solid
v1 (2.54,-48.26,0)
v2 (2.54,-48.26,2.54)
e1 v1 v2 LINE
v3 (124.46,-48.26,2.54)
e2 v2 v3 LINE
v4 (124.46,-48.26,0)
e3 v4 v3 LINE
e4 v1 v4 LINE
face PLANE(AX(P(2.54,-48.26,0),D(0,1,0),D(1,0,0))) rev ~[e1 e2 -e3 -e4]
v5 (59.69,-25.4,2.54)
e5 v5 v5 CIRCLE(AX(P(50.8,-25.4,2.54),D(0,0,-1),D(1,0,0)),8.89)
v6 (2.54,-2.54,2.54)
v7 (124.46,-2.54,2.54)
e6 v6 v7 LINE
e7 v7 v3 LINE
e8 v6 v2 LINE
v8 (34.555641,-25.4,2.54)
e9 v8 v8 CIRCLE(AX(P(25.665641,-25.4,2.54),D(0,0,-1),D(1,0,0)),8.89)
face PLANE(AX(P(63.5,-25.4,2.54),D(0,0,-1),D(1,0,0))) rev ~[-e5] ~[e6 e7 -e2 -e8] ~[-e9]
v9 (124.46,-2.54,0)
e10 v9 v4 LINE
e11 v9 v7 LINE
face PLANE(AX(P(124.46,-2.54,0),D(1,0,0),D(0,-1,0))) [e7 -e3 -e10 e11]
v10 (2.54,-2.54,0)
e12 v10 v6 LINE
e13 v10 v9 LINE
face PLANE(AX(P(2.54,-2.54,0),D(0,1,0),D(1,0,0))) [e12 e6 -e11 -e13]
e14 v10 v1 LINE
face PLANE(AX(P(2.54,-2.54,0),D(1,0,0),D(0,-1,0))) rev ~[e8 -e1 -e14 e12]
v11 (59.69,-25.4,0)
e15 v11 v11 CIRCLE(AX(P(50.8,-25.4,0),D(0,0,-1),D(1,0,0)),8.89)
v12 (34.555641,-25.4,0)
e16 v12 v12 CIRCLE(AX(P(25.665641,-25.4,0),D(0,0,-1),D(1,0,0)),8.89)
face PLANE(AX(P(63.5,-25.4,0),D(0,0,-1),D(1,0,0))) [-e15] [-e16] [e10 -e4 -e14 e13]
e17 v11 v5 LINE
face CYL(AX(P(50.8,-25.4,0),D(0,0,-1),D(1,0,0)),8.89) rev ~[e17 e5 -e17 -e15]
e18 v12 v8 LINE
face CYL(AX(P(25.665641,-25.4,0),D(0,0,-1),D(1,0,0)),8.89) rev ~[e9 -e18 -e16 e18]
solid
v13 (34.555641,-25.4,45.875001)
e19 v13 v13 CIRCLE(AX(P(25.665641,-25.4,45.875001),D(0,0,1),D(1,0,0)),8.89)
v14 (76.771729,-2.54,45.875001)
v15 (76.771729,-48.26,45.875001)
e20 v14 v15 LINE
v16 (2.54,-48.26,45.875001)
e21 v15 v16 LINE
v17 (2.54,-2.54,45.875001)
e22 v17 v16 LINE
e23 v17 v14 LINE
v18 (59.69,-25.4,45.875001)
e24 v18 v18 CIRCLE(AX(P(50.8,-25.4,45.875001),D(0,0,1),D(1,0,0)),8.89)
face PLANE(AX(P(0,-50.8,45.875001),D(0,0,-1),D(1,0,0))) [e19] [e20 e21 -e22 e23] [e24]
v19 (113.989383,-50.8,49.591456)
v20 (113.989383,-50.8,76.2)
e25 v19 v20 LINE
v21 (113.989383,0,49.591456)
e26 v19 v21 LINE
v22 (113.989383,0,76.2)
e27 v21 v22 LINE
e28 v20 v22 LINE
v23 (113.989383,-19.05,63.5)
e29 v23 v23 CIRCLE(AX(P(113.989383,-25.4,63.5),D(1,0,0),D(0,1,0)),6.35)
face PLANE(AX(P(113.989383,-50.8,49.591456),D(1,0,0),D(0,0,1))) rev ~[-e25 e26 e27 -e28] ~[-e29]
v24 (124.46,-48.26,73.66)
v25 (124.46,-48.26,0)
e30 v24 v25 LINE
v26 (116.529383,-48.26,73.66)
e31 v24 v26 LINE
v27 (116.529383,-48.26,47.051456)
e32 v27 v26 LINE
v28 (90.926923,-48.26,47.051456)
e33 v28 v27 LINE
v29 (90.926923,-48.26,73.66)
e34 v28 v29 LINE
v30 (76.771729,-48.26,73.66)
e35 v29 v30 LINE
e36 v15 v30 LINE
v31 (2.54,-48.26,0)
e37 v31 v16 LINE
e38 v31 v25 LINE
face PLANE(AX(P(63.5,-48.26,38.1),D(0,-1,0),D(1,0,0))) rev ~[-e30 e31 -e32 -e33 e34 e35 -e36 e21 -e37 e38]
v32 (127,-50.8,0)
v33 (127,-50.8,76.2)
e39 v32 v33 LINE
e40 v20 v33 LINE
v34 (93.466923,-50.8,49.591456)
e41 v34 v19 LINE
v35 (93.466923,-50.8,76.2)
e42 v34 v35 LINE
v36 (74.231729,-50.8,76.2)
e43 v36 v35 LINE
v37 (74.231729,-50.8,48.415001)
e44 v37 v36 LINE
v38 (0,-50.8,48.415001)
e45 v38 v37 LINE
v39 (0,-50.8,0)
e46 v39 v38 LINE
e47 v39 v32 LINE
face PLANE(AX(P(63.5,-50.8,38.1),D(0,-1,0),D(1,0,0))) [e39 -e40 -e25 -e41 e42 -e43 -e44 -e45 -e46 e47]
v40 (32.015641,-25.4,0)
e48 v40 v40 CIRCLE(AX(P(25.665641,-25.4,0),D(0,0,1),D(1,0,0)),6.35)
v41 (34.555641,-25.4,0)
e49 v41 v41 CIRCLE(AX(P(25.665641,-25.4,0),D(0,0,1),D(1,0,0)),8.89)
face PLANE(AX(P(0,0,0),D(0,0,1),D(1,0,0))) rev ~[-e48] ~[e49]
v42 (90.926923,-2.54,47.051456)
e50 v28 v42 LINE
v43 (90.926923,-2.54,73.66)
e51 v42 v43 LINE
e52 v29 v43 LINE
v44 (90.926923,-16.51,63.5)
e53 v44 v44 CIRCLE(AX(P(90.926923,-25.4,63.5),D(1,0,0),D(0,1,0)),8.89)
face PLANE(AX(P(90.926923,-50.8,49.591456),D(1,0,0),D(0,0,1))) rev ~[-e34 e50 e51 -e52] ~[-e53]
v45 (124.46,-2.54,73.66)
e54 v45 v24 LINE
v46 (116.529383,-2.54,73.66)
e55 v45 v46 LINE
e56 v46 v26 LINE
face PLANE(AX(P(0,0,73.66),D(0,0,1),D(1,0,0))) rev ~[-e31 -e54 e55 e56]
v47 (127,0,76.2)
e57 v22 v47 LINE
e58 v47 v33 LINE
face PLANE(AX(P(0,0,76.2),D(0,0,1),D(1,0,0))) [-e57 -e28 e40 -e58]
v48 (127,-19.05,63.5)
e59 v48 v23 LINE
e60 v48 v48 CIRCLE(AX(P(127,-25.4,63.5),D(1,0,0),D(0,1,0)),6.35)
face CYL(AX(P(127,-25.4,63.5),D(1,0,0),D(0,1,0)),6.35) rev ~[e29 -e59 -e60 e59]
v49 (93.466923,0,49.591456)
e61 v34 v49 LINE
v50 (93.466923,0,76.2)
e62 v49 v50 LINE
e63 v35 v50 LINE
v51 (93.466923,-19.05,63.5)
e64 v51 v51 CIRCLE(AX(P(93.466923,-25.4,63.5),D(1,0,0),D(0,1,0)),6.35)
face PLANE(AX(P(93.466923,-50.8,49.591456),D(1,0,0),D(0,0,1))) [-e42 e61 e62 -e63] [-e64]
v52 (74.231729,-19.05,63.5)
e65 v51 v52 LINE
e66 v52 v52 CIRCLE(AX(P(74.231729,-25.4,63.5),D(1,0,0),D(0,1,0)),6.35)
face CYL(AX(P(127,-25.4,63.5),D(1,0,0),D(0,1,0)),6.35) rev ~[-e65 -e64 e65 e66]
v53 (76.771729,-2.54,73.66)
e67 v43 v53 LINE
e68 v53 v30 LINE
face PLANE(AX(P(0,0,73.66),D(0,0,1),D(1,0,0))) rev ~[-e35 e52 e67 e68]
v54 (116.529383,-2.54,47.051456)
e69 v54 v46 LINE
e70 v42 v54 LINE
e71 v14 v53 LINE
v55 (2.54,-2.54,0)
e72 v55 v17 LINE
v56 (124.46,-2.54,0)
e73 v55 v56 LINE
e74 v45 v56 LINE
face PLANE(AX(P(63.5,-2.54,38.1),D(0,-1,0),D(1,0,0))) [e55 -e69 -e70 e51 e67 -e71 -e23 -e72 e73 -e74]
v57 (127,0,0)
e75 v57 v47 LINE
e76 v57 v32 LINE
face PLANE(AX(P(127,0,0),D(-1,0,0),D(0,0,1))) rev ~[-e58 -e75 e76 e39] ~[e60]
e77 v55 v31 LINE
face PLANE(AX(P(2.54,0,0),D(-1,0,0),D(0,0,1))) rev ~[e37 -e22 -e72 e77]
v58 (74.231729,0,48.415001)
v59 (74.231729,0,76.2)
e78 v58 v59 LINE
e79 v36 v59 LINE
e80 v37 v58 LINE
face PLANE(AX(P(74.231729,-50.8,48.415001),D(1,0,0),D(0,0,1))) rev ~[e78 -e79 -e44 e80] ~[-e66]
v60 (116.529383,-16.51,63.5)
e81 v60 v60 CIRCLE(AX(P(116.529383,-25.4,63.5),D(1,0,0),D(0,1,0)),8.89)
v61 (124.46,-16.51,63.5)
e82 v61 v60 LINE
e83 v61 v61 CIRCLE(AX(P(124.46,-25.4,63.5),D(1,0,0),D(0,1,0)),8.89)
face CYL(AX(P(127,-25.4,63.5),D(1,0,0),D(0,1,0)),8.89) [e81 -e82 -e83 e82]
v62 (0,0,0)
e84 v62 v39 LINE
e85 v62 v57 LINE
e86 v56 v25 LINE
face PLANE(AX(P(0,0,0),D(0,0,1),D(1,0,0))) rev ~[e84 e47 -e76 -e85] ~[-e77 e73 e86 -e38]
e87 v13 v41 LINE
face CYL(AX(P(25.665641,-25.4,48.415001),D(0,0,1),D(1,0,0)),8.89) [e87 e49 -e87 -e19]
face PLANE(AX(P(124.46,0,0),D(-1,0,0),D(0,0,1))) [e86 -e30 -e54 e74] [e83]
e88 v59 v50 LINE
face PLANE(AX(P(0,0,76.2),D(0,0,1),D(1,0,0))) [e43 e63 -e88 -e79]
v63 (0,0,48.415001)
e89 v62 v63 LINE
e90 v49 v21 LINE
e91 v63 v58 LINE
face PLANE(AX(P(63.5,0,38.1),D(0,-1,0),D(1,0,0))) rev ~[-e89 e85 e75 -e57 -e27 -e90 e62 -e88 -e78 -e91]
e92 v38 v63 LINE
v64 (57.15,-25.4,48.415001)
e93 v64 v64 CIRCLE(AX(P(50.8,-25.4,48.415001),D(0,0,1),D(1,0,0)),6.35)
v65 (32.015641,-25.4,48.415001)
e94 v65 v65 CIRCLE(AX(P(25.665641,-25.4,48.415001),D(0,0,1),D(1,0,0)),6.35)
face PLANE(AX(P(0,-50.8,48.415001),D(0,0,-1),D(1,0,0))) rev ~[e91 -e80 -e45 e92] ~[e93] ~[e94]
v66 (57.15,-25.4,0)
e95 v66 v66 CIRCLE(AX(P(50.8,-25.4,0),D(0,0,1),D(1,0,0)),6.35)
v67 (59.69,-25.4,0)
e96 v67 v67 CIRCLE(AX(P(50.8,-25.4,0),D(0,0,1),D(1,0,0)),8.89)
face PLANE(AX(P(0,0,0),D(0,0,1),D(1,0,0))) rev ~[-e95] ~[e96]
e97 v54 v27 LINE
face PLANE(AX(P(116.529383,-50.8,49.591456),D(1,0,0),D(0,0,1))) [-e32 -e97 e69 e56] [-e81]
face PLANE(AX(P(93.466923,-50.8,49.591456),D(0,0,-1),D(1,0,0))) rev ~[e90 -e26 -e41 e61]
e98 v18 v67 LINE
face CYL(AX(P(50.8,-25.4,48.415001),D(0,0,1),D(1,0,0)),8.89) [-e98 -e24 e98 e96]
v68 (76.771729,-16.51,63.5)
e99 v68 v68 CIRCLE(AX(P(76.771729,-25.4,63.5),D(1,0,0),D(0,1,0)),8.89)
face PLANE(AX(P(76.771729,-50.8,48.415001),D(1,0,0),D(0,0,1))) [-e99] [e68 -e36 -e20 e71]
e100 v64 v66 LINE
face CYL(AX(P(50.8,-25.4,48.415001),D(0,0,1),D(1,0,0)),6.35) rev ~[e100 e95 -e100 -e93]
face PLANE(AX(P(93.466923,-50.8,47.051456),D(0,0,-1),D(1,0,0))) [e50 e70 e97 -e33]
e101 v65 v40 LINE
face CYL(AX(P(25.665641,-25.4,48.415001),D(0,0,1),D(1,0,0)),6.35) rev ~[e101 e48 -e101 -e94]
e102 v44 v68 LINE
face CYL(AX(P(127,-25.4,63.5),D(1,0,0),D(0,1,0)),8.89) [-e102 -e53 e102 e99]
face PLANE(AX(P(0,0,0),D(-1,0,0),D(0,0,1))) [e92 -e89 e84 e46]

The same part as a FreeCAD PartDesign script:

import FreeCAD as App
import Part
import Sketcher
Q = App.Units.Quantity


def faces_at(feature, points):
    """Names of the faces that lie closest to the given points."""
    faces = feature.Shape.Faces
    near = lambda p: min(range(len(faces)), key=lambda i: faces[i].distToShape(Part.Vertex(*p))[0])
    return sorted({f"Face{near(p) + 1}" for p in points})

doc = App.newDocument("Part")
body = doc.addObject("PartDesign::Body", "Body")

# Sketch on XZ plane
sketch1 = body.newObject("Sketcher::SketchObject", "Sketch")
sketch1.AttachmentSupport = (doc.getObject("XZ_Plane"), [""])
sketch1.MapMode = "FlatFace"
sketch1.addGeometry([
    Part.LineSegment(App.Vector(0, 76, 0), App.Vector(0, 0, 0)),
    Part.LineSegment(App.Vector(0, 0, 0), App.Vector(127, 0, 0)),
    Part.LineSegment(App.Vector(127, 0, 0), App.Vector(127, 76, 0)),
    Part.LineSegment(App.Vector(127, 76, 0), App.Vector(0, 76, 0)),
], False)
sketch1.addConstraint([
    Sketcher.Constraint("Coincident", 0, 2, 1, 1),
    Sketcher.Constraint("Coincident", 1, 2, 2, 1),
    Sketcher.Constraint("Coincident", 2, 2, 3, 1),
    Sketcher.Constraint("Coincident", 3, 2, 0, 1),
    Sketcher.Constraint("Vertical", 0),
    Sketcher.Constraint("Horizontal", 1),
    Sketcher.Constraint("Vertical", 2),
    Sketcher.Constraint("Horizontal", 3),
    Sketcher.Constraint("Coincident", 0, 2, -1, 1),
    Sketcher.Constraint("DistanceX", 1, 1, 1, 2, Q("5 in")),
    Sketcher.Constraint("DistanceY", 0, 2, 0, 1, Q("3 in")),
])
pad1 = body.newObject("PartDesign::Pad", "Pad")
pad1.Profile = sketch1
pad1.Length = Q("2 in")

# Sketch on XZ plane
sketch2 = body.newObject("Sketcher::SketchObject", "Sketch001")
sketch2.AttachmentSupport = (doc.getObject("XZ_Plane"), [""])
sketch2.MapMode = "FlatFace"
sketch2.AttachmentOffset = App.Placement(App.Vector(0, 0, 2 * 25.4), App.Rotation())
sketch2.addGeometry([
    Part.LineSegment(App.Vector(93, 76, 0), App.Vector(93, 50, 0)),
    Part.LineSegment(App.Vector(93, 50, 0), App.Vector(114, 50, 0)),
    Part.LineSegment(App.Vector(114, 50, 0), App.Vector(114, 76, 0)),
    Part.LineSegment(App.Vector(114, 76, 0), App.Vector(93, 76, 0)),
], False)
sketch2.addConstraint([
    Sketcher.Constraint("Coincident", 0, 2, 1, 1),
    Sketcher.Constraint("Coincident", 1, 2, 2, 1),
    Sketcher.Constraint("Coincident", 2, 2, 3, 1),
    Sketcher.Constraint("Coincident", 3, 2, 0, 1),
    Sketcher.Constraint("Vertical", 0),
    Sketcher.Constraint("Horizontal", 1),
    Sketcher.Constraint("Vertical", 2),
    Sketcher.Constraint("Horizontal", 3),
    Sketcher.Constraint("DistanceY", -1, 1, 2, 2, Q("3 in")),
    Sketcher.Constraint("DistanceX", -1, 1, 0, 2, Q("3.6798001 in")),
    Sketcher.Constraint("DistanceX", 1, 1, 1, 2, Q("20.52246 mm")),
    Sketcher.Constraint("DistanceY", 0, 2, 0, 1, Q("26.608544 mm")),
])
pocket1 = body.newObject("PartDesign::Pocket", "Pocket")
pocket1.Profile = sketch2
pocket1.Type = "ThroughAll"

# Sketch on XZ plane
sketch3 = body.newObject("Sketcher::SketchObject", "Sketch002")
sketch3.AttachmentSupport = (doc.getObject("XZ_Plane"), [""])
sketch3.MapMode = "FlatFace"
sketch3.AttachmentOffset = App.Placement(App.Vector(0, 0, 2 * 25.4), App.Rotation())
sketch3.addGeometry([
    Part.LineSegment(App.Vector(0, 76, 0), App.Vector(0, 48, 0)),
    Part.LineSegment(App.Vector(0, 48, 0), App.Vector(74, 48, 0)),
    Part.LineSegment(App.Vector(74, 48, 0), App.Vector(74, 76, 0)),
    Part.LineSegment(App.Vector(74, 76, 0), App.Vector(0, 76, 0)),
], False)
sketch3.addConstraint([
    Sketcher.Constraint("Coincident", 0, 2, 1, 1),
    Sketcher.Constraint("Coincident", 1, 2, 2, 1),
    Sketcher.Constraint("Coincident", 2, 2, 3, 1),
    Sketcher.Constraint("Coincident", 3, 2, 0, 1),
    Sketcher.Constraint("Vertical", 0),
    Sketcher.Constraint("Horizontal", 1),
    Sketcher.Constraint("Vertical", 2),
    Sketcher.Constraint("Horizontal", 3),
    Sketcher.Constraint("PointOnObject", 0, 2, -2),
    Sketcher.Constraint("DistanceY", -1, 1, 2, 2, Q("3 in")),
    Sketcher.Constraint("DistanceY", 0, 2, 0, 1, Q("27.784999 mm")),
    Sketcher.Constraint("DistanceX", 1, 1, 1, 2, Q("74.231729 mm")),
])
pocket2 = body.newObject("PartDesign::Pocket", "Pocket001")
pocket2.Profile = sketch3
pocket2.Type = "ThroughAll"

# Sketch on YZ plane
sketch4 = body.newObject("Sketcher::SketchObject", "Sketch003")
sketch4.AttachmentSupport = (doc.getObject("YZ_Plane"), [""])
sketch4.MapMode = "FlatFace"
sketch4.AttachmentOffset = App.Placement(App.Vector(0, 0, 5 * 25.4), App.Rotation())
sketch4.addGeometry(Part.Circle(App.Vector(-25, 64, 0), App.Vector(0, 0, 1), 6), False)
sketch4.addConstraint([
    Sketcher.Constraint("Diameter", 0, Q("0.5 in")),
    Sketcher.Constraint("DistanceX", 0, 3, -1, 1, Q("1 in")),
    Sketcher.Constraint("DistanceY", -1, 1, 0, 3, Q("2.5 in")),
])
pocket3 = body.newObject("PartDesign::Pocket", "Pocket002")
pocket3.Profile = sketch4
pocket3.Type = "ThroughAll"

# Sketch on XY plane
sketch5 = body.newObject("Sketcher::SketchObject", "Sketch004")
sketch5.AttachmentSupport = (doc.getObject("XY_Plane"), [""])
sketch5.MapMode = "FlatFace"
sketch5.AttachmentOffset = App.Placement(App.Vector(0, 0, 48.415001), App.Rotation())
sketch5.addGeometry(Part.Circle(App.Vector(51, -25, 0), App.Vector(0, 0, 1), 6), False)
sketch5.addConstraint([
    Sketcher.Constraint("Diameter", 0, Q("0.5 in")),
    Sketcher.Constraint("DistanceX", -1, 1, 0, 3, Q("2 in")),
    Sketcher.Constraint("DistanceY", 0, 3, -1, 1, Q("1 in")),
])
pocket4 = body.newObject("PartDesign::Pocket", "Pocket003")
pocket4.Profile = sketch5
pocket4.Type = "ThroughAll"

# Sketch on XY plane
sketch6 = body.newObject("Sketcher::SketchObject", "Sketch005")
sketch6.AttachmentSupport = (doc.getObject("XY_Plane"), [""])
sketch6.MapMode = "FlatFace"
sketch6.AttachmentOffset = App.Placement(App.Vector(0, 0, 48.415001), App.Rotation())
sketch6.addGeometry(Part.Circle(App.Vector(26, -25, 0), App.Vector(0, 0, 1), 6), False)
sketch6.addConstraint([
    Sketcher.Constraint("Diameter", 0, Q("0.5 in")),
    Sketcher.Constraint("DistanceY", 0, 3, -1, 1, Q("1 in")),
    Sketcher.Constraint("DistanceX", -1, 1, 0, 3, Q("25.665641 mm")),
])
pocket5 = body.newObject("PartDesign::Pocket", "Pocket004")
pocket5.Profile = sketch6
pocket5.Type = "ThroughAll"
doc.recompute()

thickness = body.newObject("PartDesign::Thickness", "Thickness")
thickness.Base = (pocket5, faces_at(pocket5, [(63.5, -25.4, 0)]))
thickness.Value = Q("0.1 in")
thickness.Reversed = True
thickness.Join = "Intersection"
body2 = doc.addObject("PartDesign::Body", "Body001")

# Sketch on XY plane
sketch7 = body2.newObject("Sketcher::SketchObject", "Sketch006")
sketch7.AttachmentSupport = (doc.getObject("XY_Plane001"), [""])
sketch7.MapMode = "FlatFace"
sketch7.addGeometry([
    Part.LineSegment(App.Vector(3, -48, 0), App.Vector(3, -3, 0)),  # 0
    Part.LineSegment(App.Vector(3, -3, 0), App.Vector(124, -3, 0)),  # 1
    Part.LineSegment(App.Vector(124, -3, 0), App.Vector(124, -48, 0)),  # 2
    Part.LineSegment(App.Vector(124, -48, 0), App.Vector(3, -48, 0)),  # 3
    Part.Circle(App.Vector(26, -25, 0), App.Vector(0, 0, 1), 9),  # 4
    Part.Circle(App.Vector(51, -25, 0), App.Vector(0, 0, 1), 9),  # 5
], False)
sketch7.addConstraint([
    Sketcher.Constraint("Coincident", 0, 2, 1, 1),
    Sketcher.Constraint("Coincident", 1, 2, 2, 1),
    Sketcher.Constraint("Coincident", 2, 2, 3, 1),
    Sketcher.Constraint("Coincident", 3, 2, 0, 1),
    Sketcher.Constraint("Vertical", 0),
    Sketcher.Constraint("Horizontal", 1),
    Sketcher.Constraint("Vertical", 2),
    Sketcher.Constraint("Horizontal", 3),
    Sketcher.Constraint("Equal", 4, 5),
    Sketcher.Constraint("Horizontal", 4, 3, 5, 3),
    Sketcher.Constraint("Diameter", 4, Q("0.7 in")),
    Sketcher.Constraint("DistanceX", 1, 1, 1, 2, Q("4.8 in")),
    Sketcher.Constraint("DistanceY", 0, 1, 0, 2, Q("1.8 in")),
    Sketcher.Constraint("DistanceY", 4, 3, -1, 1, Q("1 in")),
    Sketcher.Constraint("DistanceX", -1, 1, 5, 3, Q("2 in")),
    Sketcher.Constraint("DistanceX", -1, 1, 0, 2, Q("0.1 in")),
    Sketcher.Constraint("DistanceY", 0, 2, -1, 1, Q("0.1 in")),
    Sketcher.Constraint("DistanceX", -1, 1, 4, 3, Q("25.665641 mm")),
])
pad2 = body2.newObject("PartDesign::Pad", "Pad001")
pad2.Profile = sketch7
pad2.Length = Q("0.1 in")

doc.recompute()
